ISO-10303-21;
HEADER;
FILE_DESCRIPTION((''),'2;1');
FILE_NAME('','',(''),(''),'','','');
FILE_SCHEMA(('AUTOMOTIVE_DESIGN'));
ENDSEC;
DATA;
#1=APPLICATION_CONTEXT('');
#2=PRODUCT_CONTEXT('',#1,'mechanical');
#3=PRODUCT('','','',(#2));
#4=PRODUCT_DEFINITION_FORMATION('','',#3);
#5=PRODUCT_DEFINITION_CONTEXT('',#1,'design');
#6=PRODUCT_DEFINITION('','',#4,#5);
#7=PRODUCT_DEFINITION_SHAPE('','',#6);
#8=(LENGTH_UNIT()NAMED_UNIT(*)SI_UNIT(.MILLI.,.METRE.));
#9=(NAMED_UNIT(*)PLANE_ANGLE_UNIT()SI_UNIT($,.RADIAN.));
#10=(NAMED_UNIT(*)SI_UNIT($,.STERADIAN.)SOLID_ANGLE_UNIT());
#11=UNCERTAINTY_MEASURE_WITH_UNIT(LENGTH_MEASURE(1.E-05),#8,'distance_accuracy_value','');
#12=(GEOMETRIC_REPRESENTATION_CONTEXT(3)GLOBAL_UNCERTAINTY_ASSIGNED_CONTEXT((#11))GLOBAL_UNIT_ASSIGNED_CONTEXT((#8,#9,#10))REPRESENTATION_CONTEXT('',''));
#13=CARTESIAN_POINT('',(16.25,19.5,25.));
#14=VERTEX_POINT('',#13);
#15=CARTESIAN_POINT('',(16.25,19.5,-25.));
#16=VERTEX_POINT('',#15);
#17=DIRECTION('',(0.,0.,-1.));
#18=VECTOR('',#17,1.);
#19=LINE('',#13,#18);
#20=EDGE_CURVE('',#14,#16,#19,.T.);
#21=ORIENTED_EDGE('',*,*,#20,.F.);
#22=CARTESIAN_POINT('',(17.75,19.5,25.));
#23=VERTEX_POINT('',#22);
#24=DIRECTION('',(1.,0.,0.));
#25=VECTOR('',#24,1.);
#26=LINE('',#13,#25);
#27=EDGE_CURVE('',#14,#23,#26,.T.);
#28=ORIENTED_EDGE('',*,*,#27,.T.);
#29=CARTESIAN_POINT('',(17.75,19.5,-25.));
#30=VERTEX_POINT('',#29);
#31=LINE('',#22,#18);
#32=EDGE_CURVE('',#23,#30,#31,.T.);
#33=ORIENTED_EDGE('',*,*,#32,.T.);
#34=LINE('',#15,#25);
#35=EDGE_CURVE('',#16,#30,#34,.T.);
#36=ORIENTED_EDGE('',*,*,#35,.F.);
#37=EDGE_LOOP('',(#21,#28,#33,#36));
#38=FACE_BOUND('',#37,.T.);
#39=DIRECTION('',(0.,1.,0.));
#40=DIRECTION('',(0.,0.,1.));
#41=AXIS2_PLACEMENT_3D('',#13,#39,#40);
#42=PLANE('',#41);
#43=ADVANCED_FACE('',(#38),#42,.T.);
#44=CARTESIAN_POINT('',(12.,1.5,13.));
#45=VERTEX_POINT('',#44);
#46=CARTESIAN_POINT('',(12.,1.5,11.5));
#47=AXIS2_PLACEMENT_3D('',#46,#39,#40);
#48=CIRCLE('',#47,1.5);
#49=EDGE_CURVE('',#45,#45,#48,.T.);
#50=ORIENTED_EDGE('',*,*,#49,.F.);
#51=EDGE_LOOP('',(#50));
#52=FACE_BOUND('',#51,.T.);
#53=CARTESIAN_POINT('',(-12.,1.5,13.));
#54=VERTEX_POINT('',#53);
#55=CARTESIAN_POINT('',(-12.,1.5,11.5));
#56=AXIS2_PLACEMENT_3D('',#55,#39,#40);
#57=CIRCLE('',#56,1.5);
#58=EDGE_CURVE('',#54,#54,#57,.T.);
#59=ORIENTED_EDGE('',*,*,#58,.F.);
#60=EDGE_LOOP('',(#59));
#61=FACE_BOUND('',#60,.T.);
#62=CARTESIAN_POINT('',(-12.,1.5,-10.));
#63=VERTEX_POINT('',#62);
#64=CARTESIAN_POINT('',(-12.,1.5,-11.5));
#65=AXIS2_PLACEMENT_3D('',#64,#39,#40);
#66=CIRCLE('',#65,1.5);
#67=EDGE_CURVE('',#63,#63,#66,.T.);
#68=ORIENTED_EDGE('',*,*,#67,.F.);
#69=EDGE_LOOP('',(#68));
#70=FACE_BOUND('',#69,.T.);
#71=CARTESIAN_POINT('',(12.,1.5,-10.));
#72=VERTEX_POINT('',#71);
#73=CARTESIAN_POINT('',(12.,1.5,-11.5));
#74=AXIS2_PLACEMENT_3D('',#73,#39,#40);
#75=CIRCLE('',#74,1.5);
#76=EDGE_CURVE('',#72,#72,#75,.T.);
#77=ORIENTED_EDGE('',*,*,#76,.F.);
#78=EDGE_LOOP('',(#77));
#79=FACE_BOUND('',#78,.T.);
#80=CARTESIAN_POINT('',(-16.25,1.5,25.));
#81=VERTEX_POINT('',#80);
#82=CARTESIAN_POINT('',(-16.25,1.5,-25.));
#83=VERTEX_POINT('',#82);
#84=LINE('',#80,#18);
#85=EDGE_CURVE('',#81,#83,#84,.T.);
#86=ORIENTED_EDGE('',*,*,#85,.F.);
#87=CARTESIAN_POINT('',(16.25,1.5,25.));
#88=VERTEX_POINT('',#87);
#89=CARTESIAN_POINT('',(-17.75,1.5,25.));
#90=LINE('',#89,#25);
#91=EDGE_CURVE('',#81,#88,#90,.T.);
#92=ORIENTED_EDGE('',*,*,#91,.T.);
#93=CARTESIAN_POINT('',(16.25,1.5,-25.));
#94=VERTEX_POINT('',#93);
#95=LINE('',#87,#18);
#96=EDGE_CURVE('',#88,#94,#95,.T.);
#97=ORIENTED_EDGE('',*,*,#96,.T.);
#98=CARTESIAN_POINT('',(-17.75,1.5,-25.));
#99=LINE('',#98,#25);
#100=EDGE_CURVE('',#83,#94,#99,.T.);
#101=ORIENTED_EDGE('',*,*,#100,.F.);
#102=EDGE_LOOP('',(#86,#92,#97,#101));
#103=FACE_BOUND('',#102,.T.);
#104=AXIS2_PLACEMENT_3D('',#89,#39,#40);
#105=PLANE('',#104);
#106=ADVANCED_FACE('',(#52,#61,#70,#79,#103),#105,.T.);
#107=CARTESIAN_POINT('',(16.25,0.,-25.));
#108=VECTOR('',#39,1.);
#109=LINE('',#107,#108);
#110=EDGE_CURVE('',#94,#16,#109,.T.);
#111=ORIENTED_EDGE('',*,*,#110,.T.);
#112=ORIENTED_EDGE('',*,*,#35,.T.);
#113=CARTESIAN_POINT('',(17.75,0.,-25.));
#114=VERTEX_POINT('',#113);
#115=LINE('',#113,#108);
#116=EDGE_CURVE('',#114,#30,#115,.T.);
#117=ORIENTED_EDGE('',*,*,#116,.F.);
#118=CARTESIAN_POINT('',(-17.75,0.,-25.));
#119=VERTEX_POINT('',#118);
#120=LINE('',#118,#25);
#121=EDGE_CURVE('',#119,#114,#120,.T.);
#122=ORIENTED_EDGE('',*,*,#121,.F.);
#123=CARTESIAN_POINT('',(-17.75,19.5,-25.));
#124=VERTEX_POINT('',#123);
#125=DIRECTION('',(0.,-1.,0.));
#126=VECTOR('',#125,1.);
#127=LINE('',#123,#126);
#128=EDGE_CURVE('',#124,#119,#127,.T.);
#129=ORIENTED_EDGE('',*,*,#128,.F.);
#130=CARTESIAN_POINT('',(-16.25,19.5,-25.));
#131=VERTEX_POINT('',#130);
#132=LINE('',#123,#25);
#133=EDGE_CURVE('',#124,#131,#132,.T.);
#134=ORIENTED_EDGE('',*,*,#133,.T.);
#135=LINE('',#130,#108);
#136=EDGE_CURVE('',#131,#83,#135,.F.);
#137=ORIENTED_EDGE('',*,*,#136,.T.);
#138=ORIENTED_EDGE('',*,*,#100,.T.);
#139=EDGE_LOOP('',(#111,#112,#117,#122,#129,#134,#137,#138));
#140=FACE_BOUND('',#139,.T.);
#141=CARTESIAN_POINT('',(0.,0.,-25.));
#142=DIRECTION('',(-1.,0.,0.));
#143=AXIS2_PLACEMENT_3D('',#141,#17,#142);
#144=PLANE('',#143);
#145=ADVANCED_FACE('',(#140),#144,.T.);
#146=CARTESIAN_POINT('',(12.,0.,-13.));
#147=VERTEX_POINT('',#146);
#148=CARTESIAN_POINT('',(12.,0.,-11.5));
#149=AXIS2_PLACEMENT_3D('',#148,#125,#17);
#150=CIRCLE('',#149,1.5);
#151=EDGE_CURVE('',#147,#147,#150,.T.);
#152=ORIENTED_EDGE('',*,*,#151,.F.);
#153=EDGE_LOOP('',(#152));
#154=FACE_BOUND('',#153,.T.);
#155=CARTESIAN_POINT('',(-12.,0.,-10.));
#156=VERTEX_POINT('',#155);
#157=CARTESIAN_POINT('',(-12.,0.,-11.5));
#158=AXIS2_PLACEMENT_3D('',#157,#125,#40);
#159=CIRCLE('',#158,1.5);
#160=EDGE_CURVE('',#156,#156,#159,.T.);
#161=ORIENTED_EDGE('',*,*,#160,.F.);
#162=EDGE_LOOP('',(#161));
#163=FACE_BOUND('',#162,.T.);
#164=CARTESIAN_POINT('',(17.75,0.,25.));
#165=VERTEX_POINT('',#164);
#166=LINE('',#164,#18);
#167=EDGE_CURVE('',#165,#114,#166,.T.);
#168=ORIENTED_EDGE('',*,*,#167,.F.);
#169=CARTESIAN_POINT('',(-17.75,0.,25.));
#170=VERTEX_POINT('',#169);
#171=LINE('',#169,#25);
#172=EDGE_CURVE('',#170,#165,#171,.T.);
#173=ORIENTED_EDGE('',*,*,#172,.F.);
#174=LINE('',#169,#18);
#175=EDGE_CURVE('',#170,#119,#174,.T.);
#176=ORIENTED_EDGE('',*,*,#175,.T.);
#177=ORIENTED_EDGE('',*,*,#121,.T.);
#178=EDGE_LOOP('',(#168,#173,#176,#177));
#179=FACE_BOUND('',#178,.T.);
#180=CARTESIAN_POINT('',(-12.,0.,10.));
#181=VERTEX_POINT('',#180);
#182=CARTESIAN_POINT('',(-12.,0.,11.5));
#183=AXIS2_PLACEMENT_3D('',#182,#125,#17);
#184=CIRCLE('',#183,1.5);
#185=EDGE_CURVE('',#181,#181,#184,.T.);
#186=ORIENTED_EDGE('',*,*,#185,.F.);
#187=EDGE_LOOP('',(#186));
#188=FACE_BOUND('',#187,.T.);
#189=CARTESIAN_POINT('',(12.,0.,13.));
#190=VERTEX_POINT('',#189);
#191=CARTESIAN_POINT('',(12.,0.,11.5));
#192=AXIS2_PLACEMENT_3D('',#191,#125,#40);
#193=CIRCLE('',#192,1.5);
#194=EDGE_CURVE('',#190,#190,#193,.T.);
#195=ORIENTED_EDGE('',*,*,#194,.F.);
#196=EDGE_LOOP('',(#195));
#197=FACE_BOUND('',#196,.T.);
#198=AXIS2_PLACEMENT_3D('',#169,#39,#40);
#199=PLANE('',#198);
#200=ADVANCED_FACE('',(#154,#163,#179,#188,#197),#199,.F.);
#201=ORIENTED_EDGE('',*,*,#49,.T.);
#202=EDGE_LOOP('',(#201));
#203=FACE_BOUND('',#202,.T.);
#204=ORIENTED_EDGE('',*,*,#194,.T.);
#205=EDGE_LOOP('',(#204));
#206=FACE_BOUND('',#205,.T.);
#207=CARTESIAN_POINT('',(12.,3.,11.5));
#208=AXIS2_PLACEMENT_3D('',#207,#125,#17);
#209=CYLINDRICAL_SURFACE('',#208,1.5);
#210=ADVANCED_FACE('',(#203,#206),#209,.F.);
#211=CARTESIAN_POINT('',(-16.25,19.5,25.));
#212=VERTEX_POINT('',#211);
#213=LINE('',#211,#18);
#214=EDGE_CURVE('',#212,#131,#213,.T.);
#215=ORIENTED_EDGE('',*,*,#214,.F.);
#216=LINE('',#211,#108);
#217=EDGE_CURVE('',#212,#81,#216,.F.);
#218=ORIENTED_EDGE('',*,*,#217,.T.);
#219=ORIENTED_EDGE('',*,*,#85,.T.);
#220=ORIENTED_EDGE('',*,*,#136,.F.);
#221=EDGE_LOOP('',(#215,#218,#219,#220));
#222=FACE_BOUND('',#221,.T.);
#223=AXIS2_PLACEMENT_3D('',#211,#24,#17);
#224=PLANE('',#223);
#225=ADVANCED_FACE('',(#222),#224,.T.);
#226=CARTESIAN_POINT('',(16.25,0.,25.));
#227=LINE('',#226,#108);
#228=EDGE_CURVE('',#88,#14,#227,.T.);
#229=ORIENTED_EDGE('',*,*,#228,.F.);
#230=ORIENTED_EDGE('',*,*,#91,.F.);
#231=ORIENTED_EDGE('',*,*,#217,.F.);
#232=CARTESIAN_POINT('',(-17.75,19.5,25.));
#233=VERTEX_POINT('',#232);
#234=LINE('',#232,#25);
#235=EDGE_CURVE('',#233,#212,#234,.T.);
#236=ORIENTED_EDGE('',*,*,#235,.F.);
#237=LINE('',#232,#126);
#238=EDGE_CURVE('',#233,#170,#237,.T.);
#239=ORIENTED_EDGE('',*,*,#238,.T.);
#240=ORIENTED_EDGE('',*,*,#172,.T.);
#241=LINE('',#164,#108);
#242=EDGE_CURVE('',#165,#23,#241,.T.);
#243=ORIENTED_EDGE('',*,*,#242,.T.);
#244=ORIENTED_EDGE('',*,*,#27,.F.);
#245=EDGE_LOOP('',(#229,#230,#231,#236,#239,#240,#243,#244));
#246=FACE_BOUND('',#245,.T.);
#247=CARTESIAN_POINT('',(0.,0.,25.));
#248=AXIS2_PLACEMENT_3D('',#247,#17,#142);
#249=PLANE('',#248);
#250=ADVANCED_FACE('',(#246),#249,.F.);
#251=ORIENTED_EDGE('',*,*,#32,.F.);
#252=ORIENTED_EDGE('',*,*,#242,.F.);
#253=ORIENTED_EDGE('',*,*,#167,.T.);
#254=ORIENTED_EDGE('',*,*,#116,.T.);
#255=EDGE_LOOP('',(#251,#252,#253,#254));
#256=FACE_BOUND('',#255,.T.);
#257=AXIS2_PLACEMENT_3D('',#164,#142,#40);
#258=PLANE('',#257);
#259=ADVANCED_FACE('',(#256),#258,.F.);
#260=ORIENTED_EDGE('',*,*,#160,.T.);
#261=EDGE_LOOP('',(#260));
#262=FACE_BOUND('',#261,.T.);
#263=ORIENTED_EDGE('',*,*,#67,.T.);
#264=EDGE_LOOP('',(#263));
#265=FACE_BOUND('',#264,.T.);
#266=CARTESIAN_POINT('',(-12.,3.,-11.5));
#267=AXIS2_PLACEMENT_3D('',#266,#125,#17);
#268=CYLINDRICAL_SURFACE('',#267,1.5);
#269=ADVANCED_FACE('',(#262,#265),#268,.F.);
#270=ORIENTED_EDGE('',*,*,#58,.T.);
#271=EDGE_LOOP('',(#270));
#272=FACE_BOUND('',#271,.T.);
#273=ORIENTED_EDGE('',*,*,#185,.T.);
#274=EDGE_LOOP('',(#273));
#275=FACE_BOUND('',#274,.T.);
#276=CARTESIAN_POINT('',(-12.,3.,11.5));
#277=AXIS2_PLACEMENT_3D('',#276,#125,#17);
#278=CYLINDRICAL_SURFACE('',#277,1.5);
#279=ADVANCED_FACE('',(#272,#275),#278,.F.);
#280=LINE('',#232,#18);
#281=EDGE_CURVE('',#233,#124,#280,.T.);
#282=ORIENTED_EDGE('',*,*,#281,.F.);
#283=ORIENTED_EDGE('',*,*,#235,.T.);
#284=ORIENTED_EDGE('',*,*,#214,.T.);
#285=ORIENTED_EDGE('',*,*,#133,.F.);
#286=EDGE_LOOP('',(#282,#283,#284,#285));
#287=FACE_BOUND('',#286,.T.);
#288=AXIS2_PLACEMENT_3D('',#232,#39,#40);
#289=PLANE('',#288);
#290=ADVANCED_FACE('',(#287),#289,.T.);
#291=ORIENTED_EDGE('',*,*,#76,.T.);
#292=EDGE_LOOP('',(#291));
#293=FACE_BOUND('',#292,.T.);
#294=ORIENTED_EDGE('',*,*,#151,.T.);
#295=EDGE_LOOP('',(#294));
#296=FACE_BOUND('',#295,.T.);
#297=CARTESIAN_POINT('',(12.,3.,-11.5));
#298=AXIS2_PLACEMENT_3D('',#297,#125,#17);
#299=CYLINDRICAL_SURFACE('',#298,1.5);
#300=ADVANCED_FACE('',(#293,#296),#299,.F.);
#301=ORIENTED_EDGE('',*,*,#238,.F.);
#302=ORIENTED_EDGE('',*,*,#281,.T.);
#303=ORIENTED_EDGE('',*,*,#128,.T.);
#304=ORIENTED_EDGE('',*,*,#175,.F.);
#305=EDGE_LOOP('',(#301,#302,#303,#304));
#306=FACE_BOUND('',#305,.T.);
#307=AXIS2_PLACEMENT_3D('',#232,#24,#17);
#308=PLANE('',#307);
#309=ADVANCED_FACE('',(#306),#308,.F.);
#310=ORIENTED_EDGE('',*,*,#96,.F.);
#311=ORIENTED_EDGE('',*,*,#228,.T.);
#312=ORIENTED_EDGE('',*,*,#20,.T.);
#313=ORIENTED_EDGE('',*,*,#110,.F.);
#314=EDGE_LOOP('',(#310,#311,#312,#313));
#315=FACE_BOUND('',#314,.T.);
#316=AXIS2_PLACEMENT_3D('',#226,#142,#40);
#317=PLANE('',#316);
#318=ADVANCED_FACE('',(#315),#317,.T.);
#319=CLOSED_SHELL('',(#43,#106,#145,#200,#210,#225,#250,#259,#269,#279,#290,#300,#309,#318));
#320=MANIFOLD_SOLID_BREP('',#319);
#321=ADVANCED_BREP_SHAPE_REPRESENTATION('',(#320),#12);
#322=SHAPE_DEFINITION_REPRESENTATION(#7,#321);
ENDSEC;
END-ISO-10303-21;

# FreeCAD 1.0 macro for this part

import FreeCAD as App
import Part
import Sketcher

doc = App.newDocument("Part")
body = doc.addObject("PartDesign::Body", "Body")

sketch1 = doc.addObject("Sketcher::SketchObject", "Sketch")
body.addObject(sketch1)
sketch1.AttachmentSupport = (doc.XY_Plane, [""])
sketch1.MapMode = "FlatFace"
sketch1.addGeometry(Part.LineSegment(App.Vector(-17.75, 19.5, 0), App.Vector(-17.75, 0, 0)), False)
sketch1.addGeometry(Part.LineSegment(App.Vector(-17.75, 0, 0), App.Vector(17.75, 0, 0)), False)
sketch1.addGeometry(Part.LineSegment(App.Vector(17.75, 0, 0), App.Vector(17.75, 19.5, 0)), False)
sketch1.addGeometry(Part.LineSegment(App.Vector(17.75, 19.5, 0), App.Vector(16.25, 19.5, 0)), False)
sketch1.addGeometry(Part.LineSegment(App.Vector(16.25, 19.5, 0), App.Vector(16.25, 1.5, 0)), False)
sketch1.addGeometry(Part.LineSegment(App.Vector(16.25, 1.5, 0), App.Vector(-16.25, 1.5, 0)), False)
sketch1.addGeometry(Part.LineSegment(App.Vector(-16.25, 1.5, 0), App.Vector(-16.25, 19.5, 0)), False)
sketch1.addGeometry(Part.LineSegment(App.Vector(-16.25, 19.5, 0), App.Vector(-17.75, 19.5, 0)), False)
sketch1.addConstraint(Sketcher.Constraint("Coincident", 0, 2, 1, 1))
sketch1.addConstraint(Sketcher.Constraint("Coincident", 1, 2, 2, 1))
sketch1.addConstraint(Sketcher.Constraint("Coincident", 2, 2, 3, 1))
sketch1.addConstraint(Sketcher.Constraint("Coincident", 3, 2, 4, 1))
sketch1.addConstraint(Sketcher.Constraint("Coincident", 4, 2, 5, 1))
sketch1.addConstraint(Sketcher.Constraint("Coincident", 5, 2, 6, 1))
sketch1.addConstraint(Sketcher.Constraint("Coincident", 6, 2, 7, 1))
sketch1.addConstraint(Sketcher.Constraint("Coincident", 7, 2, 0, 1))
sketch1.addConstraint(Sketcher.Constraint("Vertical", 0))
sketch1.addConstraint(Sketcher.Constraint("Horizontal", 1))
sketch1.addConstraint(Sketcher.Constraint("Vertical", 2))
sketch1.addConstraint(Sketcher.Constraint("Horizontal", 3))
sketch1.addConstraint(Sketcher.Constraint("Vertical", 4))
sketch1.addConstraint(Sketcher.Constraint("Horizontal", 5))
sketch1.addConstraint(Sketcher.Constraint("Vertical", 6))
sketch1.addConstraint(Sketcher.Constraint("Horizontal", 7))
sketch1.addConstraint(Sketcher.Constraint("Symmetric", 0, 2, 1, 2, -1, 1))
sketch1.addConstraint(Sketcher.Constraint("Symmetric", 3, 2, 6, 2, -2))
sketch1.addConstraint(Sketcher.Constraint("DistanceY", 4, 2, 4, 1, 18.0))
sketch1.addConstraint(Sketcher.Constraint("DistanceX", 1, 1, 1, 2, 35.5))
sketch1.addConstraint(Sketcher.Constraint("DistanceX", 3, 2, 3, 1, 1.5))
sketch1.addConstraint(Sketcher.Constraint("DistanceY", 0, 2, 0, 1, 19.5))
pad1 = doc.addObject("PartDesign::Pad", "Pad")
body.addObject(pad1)
pad1.Profile = sketch1
pad1.Length = 50
pad1.Midplane = True

sketch2 = doc.addObject("Sketcher::SketchObject", "Sketch001")
body.addObject(sketch2)
sketch2.AttachmentSupport = (doc.XZ_Plane, [""])
sketch2.MapMode = "FlatFace"
sketch2.addGeometry(Part.Circle(App.Vector(-12, 11.5, 0), App.Vector(0, 0, 1), 1.5), False)
sketch2.addGeometry(Part.Circle(App.Vector(-12, -11.5, 0), App.Vector(0, 0, 1), 1.5), False)
sketch2.addGeometry(Part.Circle(App.Vector(12, -11.5, 0), App.Vector(0, 0, 1), 1.5), False)
sketch2.addGeometry(Part.Circle(App.Vector(12, 11.5, 0), App.Vector(0, 0, 1), 1.5), False)
sketch2.addConstraint(Sketcher.Constraint("Equal", 0, 1))
sketch2.addConstraint(Sketcher.Constraint("Equal", 1, 2))
sketch2.addConstraint(Sketcher.Constraint("Equal", 2, 3))
sketch2.addConstraint(Sketcher.Constraint("Symmetric", 0, 3, 2, 3, -1, 1))
sketch2.addConstraint(Sketcher.Constraint("Symmetric", 1, 3, 3, 3, -1, 1))
sketch2.addConstraint(Sketcher.Constraint("Symmetric", 1, 3, 2, 3, -2))
sketch2.addConstraint(Sketcher.Constraint("Diameter", 0, 3.0))
sketch2.addConstraint(Sketcher.Constraint("DistanceX", 0, 3, -1, 1, 12.0))
sketch2.addConstraint(Sketcher.Constraint("DistanceY", 1, 3, 0, 3, 23.0))
pocket1 = doc.addObject("PartDesign::Pocket", "Pocket")
body.addObject(pocket1)
pocket1.Profile = sketch2
pocket1.Length = 3

doc.recompute()
